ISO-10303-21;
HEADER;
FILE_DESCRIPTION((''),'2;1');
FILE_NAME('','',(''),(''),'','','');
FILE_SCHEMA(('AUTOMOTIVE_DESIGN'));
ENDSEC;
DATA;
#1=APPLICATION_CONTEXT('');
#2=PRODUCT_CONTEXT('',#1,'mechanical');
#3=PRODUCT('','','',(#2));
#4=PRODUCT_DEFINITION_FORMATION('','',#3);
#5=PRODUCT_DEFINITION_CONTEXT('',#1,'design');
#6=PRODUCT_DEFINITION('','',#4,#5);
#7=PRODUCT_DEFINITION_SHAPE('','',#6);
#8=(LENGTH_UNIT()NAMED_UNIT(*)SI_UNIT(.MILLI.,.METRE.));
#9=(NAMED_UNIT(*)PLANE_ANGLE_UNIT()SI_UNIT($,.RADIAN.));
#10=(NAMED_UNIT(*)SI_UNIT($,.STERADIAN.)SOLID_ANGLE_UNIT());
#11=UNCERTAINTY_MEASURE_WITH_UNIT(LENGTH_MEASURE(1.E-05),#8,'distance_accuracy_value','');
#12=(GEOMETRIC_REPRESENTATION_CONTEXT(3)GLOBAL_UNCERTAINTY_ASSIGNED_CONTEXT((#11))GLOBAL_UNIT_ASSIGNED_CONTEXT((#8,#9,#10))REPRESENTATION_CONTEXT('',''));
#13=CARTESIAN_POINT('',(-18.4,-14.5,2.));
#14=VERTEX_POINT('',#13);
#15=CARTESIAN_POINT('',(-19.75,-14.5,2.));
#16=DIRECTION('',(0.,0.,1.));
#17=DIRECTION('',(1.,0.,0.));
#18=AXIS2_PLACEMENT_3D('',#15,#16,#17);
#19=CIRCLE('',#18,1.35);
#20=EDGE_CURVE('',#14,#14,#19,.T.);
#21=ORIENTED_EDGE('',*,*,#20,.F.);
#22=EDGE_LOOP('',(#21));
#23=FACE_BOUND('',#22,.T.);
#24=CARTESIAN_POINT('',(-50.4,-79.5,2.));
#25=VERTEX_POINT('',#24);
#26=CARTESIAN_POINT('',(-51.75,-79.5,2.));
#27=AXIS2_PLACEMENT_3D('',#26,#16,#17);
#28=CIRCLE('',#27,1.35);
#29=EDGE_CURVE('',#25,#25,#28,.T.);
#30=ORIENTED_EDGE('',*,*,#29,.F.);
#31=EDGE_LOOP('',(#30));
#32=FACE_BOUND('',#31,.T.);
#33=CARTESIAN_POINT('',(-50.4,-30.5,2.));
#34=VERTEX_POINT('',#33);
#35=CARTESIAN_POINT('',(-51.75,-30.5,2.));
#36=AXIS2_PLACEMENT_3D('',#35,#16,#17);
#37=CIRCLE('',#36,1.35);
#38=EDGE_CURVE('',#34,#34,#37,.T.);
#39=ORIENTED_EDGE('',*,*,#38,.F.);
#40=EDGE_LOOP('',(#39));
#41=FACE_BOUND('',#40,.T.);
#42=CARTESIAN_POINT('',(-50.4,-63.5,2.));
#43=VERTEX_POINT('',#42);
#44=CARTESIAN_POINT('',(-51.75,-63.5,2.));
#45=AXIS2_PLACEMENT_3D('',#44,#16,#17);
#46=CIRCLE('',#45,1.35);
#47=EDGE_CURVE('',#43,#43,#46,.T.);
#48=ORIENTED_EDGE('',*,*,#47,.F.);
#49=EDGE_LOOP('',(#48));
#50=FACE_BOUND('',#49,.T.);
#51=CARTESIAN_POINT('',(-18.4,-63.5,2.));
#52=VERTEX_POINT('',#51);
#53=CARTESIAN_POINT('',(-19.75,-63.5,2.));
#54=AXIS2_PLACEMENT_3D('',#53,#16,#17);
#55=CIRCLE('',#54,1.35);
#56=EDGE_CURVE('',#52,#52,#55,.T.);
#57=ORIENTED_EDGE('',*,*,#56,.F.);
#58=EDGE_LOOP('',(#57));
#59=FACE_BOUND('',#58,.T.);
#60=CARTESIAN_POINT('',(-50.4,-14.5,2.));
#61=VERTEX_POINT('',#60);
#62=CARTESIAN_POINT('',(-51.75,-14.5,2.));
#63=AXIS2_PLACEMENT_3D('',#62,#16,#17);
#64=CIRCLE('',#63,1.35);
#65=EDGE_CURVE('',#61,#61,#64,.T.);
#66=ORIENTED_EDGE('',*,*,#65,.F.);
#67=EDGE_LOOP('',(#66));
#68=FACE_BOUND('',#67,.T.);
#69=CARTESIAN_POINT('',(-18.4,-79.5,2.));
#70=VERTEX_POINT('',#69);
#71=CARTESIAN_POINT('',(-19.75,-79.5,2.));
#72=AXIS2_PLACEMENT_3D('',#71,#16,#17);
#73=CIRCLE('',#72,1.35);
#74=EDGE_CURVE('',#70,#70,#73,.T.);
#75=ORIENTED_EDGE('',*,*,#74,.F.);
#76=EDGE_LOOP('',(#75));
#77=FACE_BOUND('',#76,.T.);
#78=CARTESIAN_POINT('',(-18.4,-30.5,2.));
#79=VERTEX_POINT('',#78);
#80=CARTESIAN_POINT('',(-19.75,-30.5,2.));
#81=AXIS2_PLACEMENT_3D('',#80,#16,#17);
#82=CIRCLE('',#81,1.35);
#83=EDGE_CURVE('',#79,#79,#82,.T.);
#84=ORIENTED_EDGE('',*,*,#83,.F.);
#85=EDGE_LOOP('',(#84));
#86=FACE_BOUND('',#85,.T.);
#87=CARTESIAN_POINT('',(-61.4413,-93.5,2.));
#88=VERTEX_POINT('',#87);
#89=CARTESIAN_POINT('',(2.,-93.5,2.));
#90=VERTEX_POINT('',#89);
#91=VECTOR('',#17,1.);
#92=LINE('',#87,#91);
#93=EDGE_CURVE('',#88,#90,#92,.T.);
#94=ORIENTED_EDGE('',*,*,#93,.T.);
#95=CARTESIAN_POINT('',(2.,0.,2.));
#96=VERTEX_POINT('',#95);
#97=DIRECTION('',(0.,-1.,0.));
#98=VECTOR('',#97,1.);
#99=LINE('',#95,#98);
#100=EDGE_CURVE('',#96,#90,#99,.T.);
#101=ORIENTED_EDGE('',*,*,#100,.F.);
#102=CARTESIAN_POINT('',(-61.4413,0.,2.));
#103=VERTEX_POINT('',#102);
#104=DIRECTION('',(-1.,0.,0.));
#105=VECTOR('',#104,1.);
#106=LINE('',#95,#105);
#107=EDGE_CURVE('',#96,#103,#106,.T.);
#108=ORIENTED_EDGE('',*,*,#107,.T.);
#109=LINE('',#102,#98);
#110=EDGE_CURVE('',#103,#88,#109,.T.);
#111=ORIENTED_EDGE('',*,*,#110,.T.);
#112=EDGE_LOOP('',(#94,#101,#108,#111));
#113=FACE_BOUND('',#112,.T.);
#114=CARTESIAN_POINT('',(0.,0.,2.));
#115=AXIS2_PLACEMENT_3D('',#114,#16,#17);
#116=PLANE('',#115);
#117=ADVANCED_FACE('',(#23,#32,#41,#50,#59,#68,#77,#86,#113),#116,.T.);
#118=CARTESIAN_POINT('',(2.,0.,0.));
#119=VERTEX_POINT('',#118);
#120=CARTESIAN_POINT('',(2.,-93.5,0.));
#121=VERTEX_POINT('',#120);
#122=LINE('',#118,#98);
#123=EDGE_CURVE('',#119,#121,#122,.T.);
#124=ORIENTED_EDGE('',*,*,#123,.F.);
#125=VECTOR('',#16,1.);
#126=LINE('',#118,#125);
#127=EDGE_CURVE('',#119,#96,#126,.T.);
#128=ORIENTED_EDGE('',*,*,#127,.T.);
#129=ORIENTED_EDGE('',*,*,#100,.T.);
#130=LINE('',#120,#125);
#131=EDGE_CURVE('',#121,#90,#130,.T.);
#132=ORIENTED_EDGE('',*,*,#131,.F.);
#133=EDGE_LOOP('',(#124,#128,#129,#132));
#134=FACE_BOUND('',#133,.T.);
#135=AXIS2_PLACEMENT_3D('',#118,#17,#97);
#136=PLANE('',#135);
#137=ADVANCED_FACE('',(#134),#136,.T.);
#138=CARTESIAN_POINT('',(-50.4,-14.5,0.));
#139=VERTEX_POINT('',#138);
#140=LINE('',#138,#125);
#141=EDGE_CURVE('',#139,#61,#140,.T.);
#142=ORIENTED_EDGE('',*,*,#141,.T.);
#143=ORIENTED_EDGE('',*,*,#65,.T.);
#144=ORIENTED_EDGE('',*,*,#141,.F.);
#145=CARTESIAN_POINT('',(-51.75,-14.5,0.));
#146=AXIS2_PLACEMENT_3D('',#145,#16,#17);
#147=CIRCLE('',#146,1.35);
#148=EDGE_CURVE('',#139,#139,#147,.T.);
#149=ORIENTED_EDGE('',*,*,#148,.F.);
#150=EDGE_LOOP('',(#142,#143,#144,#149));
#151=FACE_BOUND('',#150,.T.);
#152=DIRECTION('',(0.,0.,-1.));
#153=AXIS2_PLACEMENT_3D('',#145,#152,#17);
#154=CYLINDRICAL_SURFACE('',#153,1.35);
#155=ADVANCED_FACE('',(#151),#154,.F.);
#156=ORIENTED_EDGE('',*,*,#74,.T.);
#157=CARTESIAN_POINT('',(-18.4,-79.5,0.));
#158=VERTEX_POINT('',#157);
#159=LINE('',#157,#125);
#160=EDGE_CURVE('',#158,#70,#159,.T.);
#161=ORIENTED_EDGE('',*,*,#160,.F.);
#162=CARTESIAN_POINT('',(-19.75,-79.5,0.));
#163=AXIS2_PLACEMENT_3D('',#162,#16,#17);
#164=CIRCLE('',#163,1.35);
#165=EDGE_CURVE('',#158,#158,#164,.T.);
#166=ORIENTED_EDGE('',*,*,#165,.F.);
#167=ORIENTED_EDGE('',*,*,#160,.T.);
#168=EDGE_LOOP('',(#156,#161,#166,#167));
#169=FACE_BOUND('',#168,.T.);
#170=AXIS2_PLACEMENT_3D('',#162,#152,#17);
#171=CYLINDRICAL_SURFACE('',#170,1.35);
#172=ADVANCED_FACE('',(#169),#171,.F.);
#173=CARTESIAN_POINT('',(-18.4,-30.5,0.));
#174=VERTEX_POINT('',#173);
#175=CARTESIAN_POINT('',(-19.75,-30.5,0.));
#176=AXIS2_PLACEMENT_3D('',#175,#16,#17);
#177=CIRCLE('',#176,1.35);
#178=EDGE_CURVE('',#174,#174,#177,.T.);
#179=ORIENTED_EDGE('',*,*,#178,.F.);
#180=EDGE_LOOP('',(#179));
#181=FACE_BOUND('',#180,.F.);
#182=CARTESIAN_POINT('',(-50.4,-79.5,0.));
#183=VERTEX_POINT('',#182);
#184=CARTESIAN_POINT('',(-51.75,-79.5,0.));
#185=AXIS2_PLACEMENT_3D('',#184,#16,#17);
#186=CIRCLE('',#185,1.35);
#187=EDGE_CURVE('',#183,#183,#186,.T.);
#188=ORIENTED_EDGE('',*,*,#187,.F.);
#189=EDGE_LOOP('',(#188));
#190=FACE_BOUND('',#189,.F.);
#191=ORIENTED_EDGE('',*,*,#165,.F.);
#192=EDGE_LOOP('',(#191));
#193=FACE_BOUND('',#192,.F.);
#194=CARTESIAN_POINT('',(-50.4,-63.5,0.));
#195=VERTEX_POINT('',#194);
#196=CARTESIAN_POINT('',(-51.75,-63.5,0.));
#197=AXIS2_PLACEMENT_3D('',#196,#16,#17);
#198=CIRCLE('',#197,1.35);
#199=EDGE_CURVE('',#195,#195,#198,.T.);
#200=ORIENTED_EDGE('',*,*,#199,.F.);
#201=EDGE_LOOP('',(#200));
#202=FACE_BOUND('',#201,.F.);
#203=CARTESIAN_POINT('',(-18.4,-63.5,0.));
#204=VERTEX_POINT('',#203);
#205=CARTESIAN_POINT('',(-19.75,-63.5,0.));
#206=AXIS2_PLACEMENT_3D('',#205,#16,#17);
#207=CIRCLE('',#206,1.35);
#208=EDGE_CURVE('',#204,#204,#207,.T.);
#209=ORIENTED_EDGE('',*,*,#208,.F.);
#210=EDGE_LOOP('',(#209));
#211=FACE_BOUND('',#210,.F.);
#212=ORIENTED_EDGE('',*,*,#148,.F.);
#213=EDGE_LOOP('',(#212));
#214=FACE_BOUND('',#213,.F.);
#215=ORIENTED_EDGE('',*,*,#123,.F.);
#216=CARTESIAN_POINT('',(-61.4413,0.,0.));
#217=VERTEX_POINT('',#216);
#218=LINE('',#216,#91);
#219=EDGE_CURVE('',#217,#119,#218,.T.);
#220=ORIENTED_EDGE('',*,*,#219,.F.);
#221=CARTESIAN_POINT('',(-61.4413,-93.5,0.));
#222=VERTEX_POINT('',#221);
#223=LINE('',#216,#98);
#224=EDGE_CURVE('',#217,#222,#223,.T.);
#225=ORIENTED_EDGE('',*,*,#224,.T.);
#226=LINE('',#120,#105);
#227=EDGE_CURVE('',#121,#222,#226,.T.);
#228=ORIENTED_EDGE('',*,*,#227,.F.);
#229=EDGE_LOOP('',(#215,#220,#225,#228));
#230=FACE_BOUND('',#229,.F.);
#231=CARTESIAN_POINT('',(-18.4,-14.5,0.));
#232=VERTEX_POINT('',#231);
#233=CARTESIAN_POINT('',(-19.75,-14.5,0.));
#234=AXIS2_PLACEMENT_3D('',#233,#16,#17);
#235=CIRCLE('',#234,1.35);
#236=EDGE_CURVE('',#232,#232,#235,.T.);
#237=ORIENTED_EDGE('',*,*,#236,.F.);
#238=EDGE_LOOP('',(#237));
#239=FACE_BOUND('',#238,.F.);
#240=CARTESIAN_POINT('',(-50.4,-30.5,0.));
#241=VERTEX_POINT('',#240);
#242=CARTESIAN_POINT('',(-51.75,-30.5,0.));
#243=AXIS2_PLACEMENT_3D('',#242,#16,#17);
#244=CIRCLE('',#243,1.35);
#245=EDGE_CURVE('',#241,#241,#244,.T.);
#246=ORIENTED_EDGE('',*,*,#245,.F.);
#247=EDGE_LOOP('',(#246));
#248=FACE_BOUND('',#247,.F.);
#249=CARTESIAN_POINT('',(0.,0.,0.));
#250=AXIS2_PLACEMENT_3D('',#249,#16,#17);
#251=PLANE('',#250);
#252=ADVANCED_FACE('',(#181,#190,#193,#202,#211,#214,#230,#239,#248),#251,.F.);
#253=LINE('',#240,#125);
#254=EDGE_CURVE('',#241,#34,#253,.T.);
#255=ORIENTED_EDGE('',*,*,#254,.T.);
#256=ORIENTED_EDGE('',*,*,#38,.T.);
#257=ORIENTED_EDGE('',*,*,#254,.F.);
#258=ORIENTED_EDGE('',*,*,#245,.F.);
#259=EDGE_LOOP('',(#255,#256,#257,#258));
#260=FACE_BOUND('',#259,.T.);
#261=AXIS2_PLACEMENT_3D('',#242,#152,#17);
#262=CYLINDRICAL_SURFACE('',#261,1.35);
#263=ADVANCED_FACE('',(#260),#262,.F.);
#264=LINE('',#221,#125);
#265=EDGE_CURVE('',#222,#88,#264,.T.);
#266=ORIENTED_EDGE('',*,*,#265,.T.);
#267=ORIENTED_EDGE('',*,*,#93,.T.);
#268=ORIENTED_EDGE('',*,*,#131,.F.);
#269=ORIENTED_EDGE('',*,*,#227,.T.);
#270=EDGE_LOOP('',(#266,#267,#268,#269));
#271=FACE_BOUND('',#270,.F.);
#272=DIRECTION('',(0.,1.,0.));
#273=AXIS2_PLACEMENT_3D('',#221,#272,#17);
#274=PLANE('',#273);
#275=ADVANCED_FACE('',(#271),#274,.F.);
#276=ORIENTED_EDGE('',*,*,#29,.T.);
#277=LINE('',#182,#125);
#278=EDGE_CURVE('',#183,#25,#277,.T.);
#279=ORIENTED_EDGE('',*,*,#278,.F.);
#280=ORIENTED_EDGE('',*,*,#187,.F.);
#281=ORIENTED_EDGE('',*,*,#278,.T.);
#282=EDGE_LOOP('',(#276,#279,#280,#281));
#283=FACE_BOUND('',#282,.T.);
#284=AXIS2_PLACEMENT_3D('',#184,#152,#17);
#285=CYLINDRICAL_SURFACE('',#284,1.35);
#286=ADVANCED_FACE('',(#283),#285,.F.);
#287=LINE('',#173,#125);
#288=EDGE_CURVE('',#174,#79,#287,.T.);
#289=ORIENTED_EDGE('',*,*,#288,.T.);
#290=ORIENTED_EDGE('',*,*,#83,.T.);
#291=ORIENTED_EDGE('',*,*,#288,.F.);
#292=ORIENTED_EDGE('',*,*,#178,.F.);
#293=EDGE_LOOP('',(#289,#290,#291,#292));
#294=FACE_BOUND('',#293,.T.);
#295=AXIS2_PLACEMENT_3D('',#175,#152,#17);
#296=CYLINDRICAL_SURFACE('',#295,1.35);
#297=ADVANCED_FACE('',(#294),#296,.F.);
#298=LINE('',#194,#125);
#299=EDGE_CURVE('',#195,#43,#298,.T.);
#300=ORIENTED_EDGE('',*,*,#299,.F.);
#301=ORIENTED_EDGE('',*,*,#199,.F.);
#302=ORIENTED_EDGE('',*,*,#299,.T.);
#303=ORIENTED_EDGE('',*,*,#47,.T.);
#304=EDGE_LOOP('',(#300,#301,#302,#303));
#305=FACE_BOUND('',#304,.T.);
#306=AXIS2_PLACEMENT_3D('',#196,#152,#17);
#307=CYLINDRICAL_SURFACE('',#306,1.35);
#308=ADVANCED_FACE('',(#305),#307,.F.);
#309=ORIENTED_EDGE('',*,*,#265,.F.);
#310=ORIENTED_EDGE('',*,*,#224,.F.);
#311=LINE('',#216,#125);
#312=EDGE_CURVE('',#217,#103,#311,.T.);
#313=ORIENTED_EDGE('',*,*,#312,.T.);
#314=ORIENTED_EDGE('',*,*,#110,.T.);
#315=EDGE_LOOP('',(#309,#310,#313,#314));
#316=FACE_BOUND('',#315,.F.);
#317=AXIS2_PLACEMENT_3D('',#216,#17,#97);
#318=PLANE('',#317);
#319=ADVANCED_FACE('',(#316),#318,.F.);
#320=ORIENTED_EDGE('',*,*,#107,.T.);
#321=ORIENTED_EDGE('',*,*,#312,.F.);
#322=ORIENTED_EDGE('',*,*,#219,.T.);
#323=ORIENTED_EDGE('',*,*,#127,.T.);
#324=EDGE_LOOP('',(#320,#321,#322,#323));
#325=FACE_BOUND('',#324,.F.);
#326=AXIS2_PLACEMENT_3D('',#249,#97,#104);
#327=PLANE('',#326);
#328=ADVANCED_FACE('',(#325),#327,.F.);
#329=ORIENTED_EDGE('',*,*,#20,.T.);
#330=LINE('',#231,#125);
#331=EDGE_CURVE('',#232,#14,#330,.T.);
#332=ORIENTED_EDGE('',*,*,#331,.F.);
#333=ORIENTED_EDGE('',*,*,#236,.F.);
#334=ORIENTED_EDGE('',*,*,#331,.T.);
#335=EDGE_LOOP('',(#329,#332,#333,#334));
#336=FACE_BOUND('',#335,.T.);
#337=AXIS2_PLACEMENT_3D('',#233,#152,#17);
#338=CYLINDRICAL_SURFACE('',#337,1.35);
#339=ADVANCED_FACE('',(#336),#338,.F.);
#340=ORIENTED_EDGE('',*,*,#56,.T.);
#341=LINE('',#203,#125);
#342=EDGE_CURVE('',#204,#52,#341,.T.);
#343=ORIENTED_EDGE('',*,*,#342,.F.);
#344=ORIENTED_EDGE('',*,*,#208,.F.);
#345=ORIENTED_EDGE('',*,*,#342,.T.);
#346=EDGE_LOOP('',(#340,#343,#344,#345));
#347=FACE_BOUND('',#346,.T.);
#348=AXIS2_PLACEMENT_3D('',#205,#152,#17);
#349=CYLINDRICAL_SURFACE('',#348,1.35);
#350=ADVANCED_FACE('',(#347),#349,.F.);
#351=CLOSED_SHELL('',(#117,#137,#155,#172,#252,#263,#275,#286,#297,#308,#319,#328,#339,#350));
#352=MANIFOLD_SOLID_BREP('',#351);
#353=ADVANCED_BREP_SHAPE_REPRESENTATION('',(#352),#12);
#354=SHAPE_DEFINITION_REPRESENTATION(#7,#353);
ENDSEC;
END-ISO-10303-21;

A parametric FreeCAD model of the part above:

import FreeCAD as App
import Part
import Sketcher
from FreeCAD import Vector

doc = App.newDocument("Part")
body = doc.addObject("PartDesign::Body", "Body")

sketch1 = body.newObject("Sketcher::SketchObject", "Sketch")
sketch1.AttachmentSupport = (doc.getObject("XY_Plane"), [""])
sketch1.MapMode = "FlatFace"
sketch1.addGeometry([
    Part.LineSegment(Vector(-61.4, -93.5, 0), Vector(2, -93.5, 0)),
    Part.LineSegment(Vector(2, -93.5, 0), Vector(2, 0, 0)),
    Part.LineSegment(Vector(2, 0, 0), Vector(-61.4, 0, 0)),
    Part.LineSegment(Vector(-61.4, 0, 0), Vector(-61.4, -93.5, 0)),
    Part.Circle(Vector(-51.8, -30.5, 0), Vector(0, 0, 1), 1.4),
    Part.Circle(Vector(-51.8, -14.5, 0), Vector(0, 0, 1), 1.4),
    Part.Circle(Vector(-19.8, -30.5, 0), Vector(0, 0, 1), 1.4),
    Part.Circle(Vector(-19.8, -14.5, 0), Vector(0, 0, 1), 1.4),
    Part.Circle(Vector(-51.8, -79.5, 0), Vector(0, 0, 1), 1.4),
    Part.Circle(Vector(-51.8, -63.5, 0), Vector(0, 0, 1), 1.4),
    Part.Circle(Vector(-19.8, -79.5, 0), Vector(0, 0, 1), 1.4),
    Part.Circle(Vector(-19.8, -63.5, 0), Vector(0, 0, 1), 1.4),
], False)
sketch1.addConstraint([
    Sketcher.Constraint("Coincident", 0, 2, 1, 1),
    Sketcher.Constraint("Coincident", 1, 2, 2, 1),
    Sketcher.Constraint("Coincident", 2, 2, 3, 1),
    Sketcher.Constraint("Coincident", 3, 2, 0, 1),
    Sketcher.Constraint("Horizontal", 0),
    Sketcher.Constraint("Vertical", 1),
    Sketcher.Constraint("Horizontal", 2),
    Sketcher.Constraint("Vertical", 3),
    Sketcher.Constraint("Equal", 4, 5),
    Sketcher.Constraint("Equal", 5, 6),
    Sketcher.Constraint("Equal", 6, 7),
    Sketcher.Constraint("Equal", 7, 8),
    Sketcher.Constraint("Equal", 8, 9),
    Sketcher.Constraint("Equal", 9, 10),
    Sketcher.Constraint("Equal", 10, 11),
    Sketcher.Constraint("PointOnObject", 1, 2, -1),
    Sketcher.Constraint("Horizontal", 4, 3, 6, 3),
    Sketcher.Constraint("Horizontal", 5, 3, 7, 3),
    Sketcher.Constraint("Horizontal", 8, 3, 10, 3),
    Sketcher.Constraint("Horizontal", 9, 3, 11, 3),
    Sketcher.Constraint("Vertical", 4, 3, 5, 3),
    Sketcher.Constraint("Vertical", 6, 3, 7, 3),
    Sketcher.Constraint("Vertical", 5, 3, 8, 3),
    Sketcher.Constraint("Vertical", 8, 3, 9, 3),
    Sketcher.Constraint("Vertical", 7, 3, 10, 3),
    Sketcher.Constraint("Vertical", 10, 3, 11, 3),
    Sketcher.Constraint("Diameter", 4, 2.7),
    Sketcher.Constraint("DistanceY", 1, 1, 1, 2, 93.5),
    Sketcher.Constraint("DistanceX", -1, 1, 0, 2, 2.0),
    Sketcher.Constraint("DistanceY", 4, 3, 5, 3, 16.0),
    Sketcher.Constraint("DistanceX", 4, 3, 6, 3, 32.0),
    Sketcher.Constraint("DistanceY", 8, 3, 4, 3, 49.0),
    Sketcher.Constraint("DistanceY", 8, 3, 9, 3, 16.0),
    Sketcher.Constraint("DistanceY", 0, 2, 10, 3, 14.0),
    Sketcher.Constraint("DistanceX", 4, 3, -1, 1, 51.75),
    Sketcher.Constraint("DistanceX", 0, 1, 0, 2, 63.4413),
])
pad1 = body.newObject("PartDesign::Pad", "Pad")
pad1.Profile = sketch1
pad1.Length = 2

doc.recompute()
